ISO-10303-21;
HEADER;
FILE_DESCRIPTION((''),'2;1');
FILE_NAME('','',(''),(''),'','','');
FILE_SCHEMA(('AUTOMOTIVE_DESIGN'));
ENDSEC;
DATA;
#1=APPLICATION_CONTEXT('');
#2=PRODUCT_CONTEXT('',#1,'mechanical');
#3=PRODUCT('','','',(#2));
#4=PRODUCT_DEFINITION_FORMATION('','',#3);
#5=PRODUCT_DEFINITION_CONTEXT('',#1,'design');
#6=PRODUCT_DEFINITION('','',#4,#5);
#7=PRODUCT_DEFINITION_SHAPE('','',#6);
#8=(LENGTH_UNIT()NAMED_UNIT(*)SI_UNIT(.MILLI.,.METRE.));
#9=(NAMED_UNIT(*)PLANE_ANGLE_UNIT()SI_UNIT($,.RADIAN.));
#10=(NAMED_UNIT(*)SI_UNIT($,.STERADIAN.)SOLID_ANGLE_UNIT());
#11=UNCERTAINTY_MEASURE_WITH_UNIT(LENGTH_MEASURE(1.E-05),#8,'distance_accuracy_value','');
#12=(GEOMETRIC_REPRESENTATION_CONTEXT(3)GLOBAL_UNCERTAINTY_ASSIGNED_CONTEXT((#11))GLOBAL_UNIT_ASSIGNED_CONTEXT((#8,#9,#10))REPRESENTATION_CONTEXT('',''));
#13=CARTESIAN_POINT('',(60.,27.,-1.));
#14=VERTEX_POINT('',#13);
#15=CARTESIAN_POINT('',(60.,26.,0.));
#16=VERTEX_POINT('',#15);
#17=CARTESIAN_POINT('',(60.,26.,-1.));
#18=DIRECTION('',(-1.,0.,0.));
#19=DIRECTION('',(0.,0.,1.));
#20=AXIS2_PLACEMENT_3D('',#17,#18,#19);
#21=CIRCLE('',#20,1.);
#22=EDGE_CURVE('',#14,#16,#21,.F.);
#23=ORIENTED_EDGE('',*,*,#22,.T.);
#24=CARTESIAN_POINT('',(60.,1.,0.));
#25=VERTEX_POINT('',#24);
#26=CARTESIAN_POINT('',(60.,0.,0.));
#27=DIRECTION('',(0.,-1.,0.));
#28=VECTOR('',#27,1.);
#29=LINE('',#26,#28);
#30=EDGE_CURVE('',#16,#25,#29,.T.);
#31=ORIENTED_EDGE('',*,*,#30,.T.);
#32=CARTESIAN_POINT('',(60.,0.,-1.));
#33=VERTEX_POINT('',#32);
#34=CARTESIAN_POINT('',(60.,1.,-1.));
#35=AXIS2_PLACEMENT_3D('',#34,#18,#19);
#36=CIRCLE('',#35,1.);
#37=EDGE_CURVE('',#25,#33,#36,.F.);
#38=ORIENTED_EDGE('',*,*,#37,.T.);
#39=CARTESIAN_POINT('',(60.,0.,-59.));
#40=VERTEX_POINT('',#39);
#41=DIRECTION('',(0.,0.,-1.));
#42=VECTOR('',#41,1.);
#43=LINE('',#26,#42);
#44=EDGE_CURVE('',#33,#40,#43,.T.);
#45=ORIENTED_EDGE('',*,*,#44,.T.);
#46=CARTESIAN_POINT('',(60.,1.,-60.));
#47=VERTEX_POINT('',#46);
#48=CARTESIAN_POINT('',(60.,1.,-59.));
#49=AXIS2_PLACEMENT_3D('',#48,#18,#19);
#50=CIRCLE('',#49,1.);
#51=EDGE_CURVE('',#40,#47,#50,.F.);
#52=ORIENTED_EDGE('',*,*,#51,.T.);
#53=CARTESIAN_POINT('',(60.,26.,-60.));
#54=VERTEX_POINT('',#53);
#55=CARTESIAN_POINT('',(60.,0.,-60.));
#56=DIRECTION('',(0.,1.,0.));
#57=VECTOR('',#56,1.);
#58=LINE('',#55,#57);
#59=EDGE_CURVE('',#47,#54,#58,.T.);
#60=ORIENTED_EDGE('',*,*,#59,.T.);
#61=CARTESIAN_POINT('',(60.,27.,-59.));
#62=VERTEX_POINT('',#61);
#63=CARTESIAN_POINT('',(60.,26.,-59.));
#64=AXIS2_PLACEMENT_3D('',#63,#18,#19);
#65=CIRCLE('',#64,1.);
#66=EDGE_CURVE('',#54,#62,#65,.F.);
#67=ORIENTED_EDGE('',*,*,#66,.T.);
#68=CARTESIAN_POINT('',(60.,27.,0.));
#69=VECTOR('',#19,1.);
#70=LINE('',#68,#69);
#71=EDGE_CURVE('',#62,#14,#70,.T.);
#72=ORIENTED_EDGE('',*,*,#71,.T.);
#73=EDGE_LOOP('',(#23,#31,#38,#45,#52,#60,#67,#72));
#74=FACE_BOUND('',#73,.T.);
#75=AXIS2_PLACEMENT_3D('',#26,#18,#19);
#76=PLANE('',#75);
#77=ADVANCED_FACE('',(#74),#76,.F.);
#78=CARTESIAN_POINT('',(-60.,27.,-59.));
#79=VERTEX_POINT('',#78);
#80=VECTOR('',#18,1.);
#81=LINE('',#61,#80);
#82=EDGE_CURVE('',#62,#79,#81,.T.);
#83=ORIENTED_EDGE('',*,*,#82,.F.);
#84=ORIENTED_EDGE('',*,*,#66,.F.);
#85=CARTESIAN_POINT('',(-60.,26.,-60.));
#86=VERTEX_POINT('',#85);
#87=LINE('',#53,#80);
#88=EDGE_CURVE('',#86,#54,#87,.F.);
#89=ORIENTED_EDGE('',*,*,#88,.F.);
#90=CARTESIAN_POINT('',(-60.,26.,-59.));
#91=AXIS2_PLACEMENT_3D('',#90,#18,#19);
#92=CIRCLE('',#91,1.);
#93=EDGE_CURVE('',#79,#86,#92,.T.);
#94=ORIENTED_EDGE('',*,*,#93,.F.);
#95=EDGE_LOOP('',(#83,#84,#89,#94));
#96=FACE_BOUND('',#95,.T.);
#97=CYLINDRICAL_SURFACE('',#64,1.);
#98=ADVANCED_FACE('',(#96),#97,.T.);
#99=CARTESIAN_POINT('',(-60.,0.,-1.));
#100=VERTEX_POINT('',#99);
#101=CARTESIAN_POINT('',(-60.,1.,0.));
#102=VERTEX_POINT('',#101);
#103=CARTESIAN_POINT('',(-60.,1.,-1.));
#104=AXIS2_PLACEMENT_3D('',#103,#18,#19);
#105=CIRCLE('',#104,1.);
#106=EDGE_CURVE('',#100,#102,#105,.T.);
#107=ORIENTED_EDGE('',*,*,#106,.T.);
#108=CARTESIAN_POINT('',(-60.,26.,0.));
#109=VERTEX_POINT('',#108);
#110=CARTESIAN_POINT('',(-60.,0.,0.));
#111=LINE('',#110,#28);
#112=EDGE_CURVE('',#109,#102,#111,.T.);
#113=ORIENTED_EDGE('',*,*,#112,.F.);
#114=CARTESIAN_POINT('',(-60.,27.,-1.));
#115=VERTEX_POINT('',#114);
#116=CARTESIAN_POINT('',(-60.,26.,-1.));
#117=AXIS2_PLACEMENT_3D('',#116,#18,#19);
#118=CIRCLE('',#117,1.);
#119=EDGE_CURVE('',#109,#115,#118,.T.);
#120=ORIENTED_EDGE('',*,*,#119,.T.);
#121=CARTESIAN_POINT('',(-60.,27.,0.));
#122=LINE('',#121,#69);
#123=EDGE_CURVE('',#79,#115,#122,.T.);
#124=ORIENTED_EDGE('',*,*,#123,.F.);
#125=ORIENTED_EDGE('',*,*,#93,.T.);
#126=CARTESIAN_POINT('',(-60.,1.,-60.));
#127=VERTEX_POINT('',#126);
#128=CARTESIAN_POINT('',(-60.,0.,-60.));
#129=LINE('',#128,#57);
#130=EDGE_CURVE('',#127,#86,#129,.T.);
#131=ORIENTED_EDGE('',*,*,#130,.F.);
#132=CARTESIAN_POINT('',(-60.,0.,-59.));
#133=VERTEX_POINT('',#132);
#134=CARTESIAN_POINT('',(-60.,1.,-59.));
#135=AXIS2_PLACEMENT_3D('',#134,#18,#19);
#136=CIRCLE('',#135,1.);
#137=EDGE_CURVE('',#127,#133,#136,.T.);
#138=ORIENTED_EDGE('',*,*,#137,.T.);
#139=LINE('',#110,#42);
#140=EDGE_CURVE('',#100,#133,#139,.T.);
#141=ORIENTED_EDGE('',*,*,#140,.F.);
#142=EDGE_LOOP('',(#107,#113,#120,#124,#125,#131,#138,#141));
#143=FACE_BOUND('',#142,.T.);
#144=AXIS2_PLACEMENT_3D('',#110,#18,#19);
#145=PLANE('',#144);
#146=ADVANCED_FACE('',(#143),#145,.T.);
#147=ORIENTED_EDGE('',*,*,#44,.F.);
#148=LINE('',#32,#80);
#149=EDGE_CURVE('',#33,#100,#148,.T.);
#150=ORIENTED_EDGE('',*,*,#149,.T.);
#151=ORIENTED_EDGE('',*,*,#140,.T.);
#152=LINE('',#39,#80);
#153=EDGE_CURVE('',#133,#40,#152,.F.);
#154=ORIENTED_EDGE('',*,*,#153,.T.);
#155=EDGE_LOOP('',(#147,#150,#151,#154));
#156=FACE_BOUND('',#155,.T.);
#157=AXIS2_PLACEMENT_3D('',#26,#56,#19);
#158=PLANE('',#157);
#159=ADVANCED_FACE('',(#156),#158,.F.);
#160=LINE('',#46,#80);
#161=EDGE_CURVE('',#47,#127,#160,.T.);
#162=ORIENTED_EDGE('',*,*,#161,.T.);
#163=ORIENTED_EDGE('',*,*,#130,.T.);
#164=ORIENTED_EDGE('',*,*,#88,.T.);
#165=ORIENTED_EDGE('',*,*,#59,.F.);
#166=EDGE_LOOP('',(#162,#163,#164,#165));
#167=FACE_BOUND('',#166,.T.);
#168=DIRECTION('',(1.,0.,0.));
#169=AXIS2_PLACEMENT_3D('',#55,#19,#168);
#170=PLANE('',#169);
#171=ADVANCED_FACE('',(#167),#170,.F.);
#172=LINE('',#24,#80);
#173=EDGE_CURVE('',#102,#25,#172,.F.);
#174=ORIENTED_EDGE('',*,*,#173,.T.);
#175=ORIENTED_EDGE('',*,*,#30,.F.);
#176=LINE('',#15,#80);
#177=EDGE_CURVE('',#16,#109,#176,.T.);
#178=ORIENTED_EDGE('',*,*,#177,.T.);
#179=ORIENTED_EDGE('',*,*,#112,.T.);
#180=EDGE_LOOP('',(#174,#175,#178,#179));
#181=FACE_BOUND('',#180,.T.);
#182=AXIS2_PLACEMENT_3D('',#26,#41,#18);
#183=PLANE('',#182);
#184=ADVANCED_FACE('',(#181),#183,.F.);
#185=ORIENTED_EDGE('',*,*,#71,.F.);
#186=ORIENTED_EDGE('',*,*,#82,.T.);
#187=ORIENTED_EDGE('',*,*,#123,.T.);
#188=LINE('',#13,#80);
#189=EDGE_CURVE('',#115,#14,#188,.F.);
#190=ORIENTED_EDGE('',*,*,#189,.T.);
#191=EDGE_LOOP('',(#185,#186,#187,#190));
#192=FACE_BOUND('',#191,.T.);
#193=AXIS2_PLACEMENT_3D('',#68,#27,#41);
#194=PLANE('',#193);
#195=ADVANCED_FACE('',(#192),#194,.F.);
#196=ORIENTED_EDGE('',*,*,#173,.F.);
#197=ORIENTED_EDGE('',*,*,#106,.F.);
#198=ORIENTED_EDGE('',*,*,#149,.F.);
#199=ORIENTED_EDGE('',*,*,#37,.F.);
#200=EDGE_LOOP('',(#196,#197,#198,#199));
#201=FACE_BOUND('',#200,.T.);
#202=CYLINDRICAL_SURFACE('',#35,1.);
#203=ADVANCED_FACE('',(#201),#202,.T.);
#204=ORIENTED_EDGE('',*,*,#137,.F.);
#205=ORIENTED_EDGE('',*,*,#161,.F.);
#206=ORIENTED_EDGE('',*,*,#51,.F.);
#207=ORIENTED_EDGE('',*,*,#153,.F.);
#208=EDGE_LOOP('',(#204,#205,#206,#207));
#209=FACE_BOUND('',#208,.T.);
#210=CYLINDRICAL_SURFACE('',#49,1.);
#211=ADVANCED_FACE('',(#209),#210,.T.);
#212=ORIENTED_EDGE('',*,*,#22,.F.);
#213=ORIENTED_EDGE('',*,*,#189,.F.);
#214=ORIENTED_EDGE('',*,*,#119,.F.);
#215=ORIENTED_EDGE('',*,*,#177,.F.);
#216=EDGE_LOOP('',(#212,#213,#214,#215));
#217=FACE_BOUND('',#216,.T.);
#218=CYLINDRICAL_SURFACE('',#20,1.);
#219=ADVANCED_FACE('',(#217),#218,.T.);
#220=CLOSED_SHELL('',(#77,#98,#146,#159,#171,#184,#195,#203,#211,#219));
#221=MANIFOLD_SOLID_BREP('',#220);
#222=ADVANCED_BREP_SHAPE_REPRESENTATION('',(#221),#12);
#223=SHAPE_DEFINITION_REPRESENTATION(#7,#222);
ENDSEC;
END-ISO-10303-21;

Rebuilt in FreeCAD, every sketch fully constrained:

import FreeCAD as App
import Part
import Sketcher
from FreeCAD import Vector


def edges_at(feature, points):
    """Names of the edges that pass closest to the given points."""
    edges = feature.Shape.Edges
    near = lambda p: min(range(len(edges)), key=lambda i: edges[i].distToShape(Part.Vertex(*p))[0])
    return sorted({f"Edge{near(p) + 1}" for p in points})

doc = App.newDocument("Part")
params = doc.addObject("Spreadsheet::Sheet", "Params")
for row, (alias, value) in enumerate([
    ("sketch1_width", "27 mm"),
    ("sketch1_height", "60 mm"),
    ("pad1_length", "120 mm"),
    ("fillet_radius", "1 mm"),
], start=1):
    params.set(f"A{row}", alias)
    params.set(f"B{row}", "=" + value)
    params.setAlias(f"B{row}", alias)

body = doc.addObject("PartDesign::Body", "Body")

# Sketch on YZ plane
sketch1 = doc.addObject("Sketcher::SketchObject", "Sketch")
body.addObject(sketch1)
sketch1.AttachmentSupport = (doc.YZ_Plane, [""])
sketch1.MapMode = "FlatFace"
sketch1.addGeometry(Part.LineSegment(Vector(27, 0, 0), Vector(0, 0, 0)), False)
sketch1.addGeometry(Part.LineSegment(Vector(0, 0, 0), Vector(0, -60, 0)), False)
sketch1.addGeometry(Part.LineSegment(Vector(0, -60, 0), Vector(27, -60, 0)), False)
sketch1.addGeometry(Part.LineSegment(Vector(27, -60, 0), Vector(27, 0, 0)), False)
sketch1.addConstraint(Sketcher.Constraint("Coincident", 0, 2, 1, 1))
sketch1.addConstraint(Sketcher.Constraint("Coincident", 1, 2, 2, 1))
sketch1.addConstraint(Sketcher.Constraint("Coincident", 2, 2, 3, 1))
sketch1.addConstraint(Sketcher.Constraint("Coincident", 3, 2, 0, 1))
sketch1.addConstraint(Sketcher.Constraint("Horizontal", 0))
sketch1.addConstraint(Sketcher.Constraint("Vertical", 1))
sketch1.addConstraint(Sketcher.Constraint("Horizontal", 2))
sketch1.addConstraint(Sketcher.Constraint("Vertical", 3))
sketch1.addConstraint(Sketcher.Constraint("Coincident", 0, 2, -1, 1))
sketch1.addConstraint(Sketcher.Constraint("DistanceX", 0, 2, 0, 1, 27.0))
sketch1.addConstraint(Sketcher.Constraint("DistanceY", 1, 2, 1, 1, 60.0))
sketch1.setExpression("Constraints[9]", "Params.sketch1_width")
sketch1.setExpression("Constraints[10]", "Params.sketch1_height")
pad1 = doc.addObject("PartDesign::Pad", "Pad")
body.addObject(pad1)
pad1.Profile = sketch1
pad1.setExpression("Length", "Params.pad1_length")
pad1.Midplane = True
doc.recompute()

fillet = doc.addObject("PartDesign::Fillet", "Fillet")
body.addObject(fillet)
fillet.Base = (pad1, edges_at(pad1, [
    (0, 27, 0),
    (0, 27, -60),
    (0, 0, -60),
    (0, 0, 0),
]))
fillet.setExpression("Radius", "Params.fillet_radius")

doc.recompute()
